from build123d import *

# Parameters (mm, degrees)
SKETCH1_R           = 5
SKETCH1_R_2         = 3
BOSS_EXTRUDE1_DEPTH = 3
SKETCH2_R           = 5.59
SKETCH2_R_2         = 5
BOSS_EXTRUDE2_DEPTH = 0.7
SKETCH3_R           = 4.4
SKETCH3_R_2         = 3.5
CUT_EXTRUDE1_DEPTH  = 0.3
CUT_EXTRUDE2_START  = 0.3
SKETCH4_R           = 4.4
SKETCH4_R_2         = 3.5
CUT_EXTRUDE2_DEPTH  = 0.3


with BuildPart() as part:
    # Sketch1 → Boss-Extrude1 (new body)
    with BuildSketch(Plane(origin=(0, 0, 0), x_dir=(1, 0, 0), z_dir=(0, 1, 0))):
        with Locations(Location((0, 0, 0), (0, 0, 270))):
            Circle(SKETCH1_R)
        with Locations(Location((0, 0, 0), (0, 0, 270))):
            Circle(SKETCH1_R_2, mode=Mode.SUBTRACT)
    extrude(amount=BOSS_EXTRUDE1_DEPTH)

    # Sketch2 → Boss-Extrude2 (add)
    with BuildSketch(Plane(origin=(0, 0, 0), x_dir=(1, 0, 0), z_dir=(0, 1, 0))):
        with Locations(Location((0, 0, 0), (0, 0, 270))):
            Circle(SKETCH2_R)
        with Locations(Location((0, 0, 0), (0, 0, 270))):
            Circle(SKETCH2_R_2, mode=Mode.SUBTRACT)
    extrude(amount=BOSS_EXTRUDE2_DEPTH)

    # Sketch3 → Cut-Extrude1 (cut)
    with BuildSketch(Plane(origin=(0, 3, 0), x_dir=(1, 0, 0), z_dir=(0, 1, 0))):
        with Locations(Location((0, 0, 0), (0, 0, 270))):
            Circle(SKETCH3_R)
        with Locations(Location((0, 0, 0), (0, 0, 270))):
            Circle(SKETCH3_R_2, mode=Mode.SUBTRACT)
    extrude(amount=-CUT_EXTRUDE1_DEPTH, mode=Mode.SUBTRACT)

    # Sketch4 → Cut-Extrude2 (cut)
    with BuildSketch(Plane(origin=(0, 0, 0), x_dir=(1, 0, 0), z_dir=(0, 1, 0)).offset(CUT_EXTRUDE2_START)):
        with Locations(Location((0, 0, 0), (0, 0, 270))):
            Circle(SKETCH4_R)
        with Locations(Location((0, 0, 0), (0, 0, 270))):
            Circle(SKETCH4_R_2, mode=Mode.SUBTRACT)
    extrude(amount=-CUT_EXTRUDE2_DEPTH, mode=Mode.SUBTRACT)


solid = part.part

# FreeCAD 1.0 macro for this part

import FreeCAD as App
import Part
import Sketcher
from FreeCAD import Vector

doc = App.newDocument("Part")
params = doc.addObject("Spreadsheet::Sheet", "Params")
for row, (alias, value) in enumerate([
    ("sketch1_diameter", "10 mm"),
    ("sketch1_diameter2", "6 mm"),
    ("pad1_length", "3 mm"),
    ("sketch2_diameter", "10 mm"),
    ("sketch2_diameter2", "11.18 mm"),
    ("pad2_length", "0.7 mm"),
    ("sketch3_diameter", "7 mm"),
    ("sketch3_diameter2", "8.8 mm"),
    ("pocket1_length", "0.3 mm"),
    ("sketch4_diameter", "7 mm"),
    ("sketch4_diameter2", "8.8 mm"),
    ("pocket2_length", "0.3 mm"),
], start=1):
    params.set(f"A{row}", alias)
    params.set(f"B{row}", "=" + value)
    params.setAlias(f"B{row}", alias)

body = doc.addObject("PartDesign::Body", "Body")

sketch1 = body.newObject("Sketcher::SketchObject", "Sketch")
sketch1.AttachmentSupport = (doc.getObject("XZ_Plane"), [""])
sketch1.MapMode = "FlatFace"
sketch1.addGeometry(Part.Circle(Vector(0, 0, 0), Vector(0, 0, 1), 5), False)
sketch1.addGeometry(Part.Circle(Vector(0, 0, 0), Vector(0, 0, 1), 3), False)
sketch1.addConstraint(Sketcher.Constraint("Coincident", 0, 3, -1, 1))
sketch1.addConstraint(Sketcher.Constraint("Coincident", 1, 3, -1, 1))
sketch1.addConstraint(Sketcher.Constraint("Diameter", 0, 10.0))
sketch1.addConstraint(Sketcher.Constraint("Diameter", 1, 6.0))
sketch1.setExpression("Constraints[2]", "Params.sketch1_diameter")
sketch1.setExpression("Constraints[3]", "Params.sketch1_diameter2")
pad1 = body.newObject("PartDesign::Pad", "Pad")
pad1.Profile = sketch1
pad1.setExpression("Length", "Params.pad1_length")
pad1.Reversed = True

sketch2 = body.newObject("Sketcher::SketchObject", "Sketch001")
sketch2.AttachmentSupport = (doc.getObject("XZ_Plane"), [""])
sketch2.MapMode = "FlatFace"
sketch2.addGeometry(Part.Circle(Vector(0, 0, 0), Vector(0, 0, 1), 6), False)
sketch2.addGeometry(Part.Circle(Vector(0, 0, 0), Vector(0, 0, 1), 5), False)
sketch2.addConstraint(Sketcher.Constraint("Coincident", 0, 3, -1, 1))
sketch2.addConstraint(Sketcher.Constraint("Coincident", 1, 3, -1, 1))
sketch2.addConstraint(Sketcher.Constraint("Diameter", 1, 10.0))
sketch2.addConstraint(Sketcher.Constraint("Diameter", 0, 11.18))
sketch2.setExpression("Constraints[2]", "Params.sketch2_diameter")
sketch2.setExpression("Constraints[3]", "Params.sketch2_diameter2")
pad2 = body.newObject("PartDesign::Pad", "Pad001")
pad2.Profile = sketch2
pad2.setExpression("Length", "Params.pad2_length")
pad2.Reversed = True

sketch3 = body.newObject("Sketcher::SketchObject", "Sketch002")
sketch3.AttachmentSupport = (doc.getObject("XZ_Plane"), [""])
sketch3.MapMode = "FlatFace"
sketch3.AttachmentOffset = App.Placement(Vector(0, 0, -3), App.Rotation())
sketch3.addGeometry(Part.Circle(Vector(0, 0, 0), Vector(0, 0, 1), 4.4), False)
sketch3.addGeometry(Part.Circle(Vector(0, 0, 0), Vector(0, 0, 1), 3.5), False)
sketch3.addConstraint(Sketcher.Constraint("Coincident", 0, 3, -1, 1))
sketch3.addConstraint(Sketcher.Constraint("Coincident", 1, 3, -1, 1))
sketch3.addConstraint(Sketcher.Constraint("Diameter", 1, 7.0))
sketch3.addConstraint(Sketcher.Constraint("Diameter", 0, 8.8))
sketch3.setExpression("Constraints[2]", "Params.sketch3_diameter")
sketch3.setExpression("Constraints[3]", "Params.sketch3_diameter2")
pocket1 = body.newObject("PartDesign::Pocket", "Pocket")
pocket1.Profile = sketch3
pocket1.setExpression("Length", "Params.pocket1_length")
pocket1.Reversed = True

sketch4 = body.newObject("Sketcher::SketchObject", "Sketch003")
sketch4.AttachmentSupport = (doc.getObject("XZ_Plane"), [""])
sketch4.MapMode = "FlatFace"
sketch4.AttachmentOffset = App.Placement(Vector(0, 0, -0.3), App.Rotation())
sketch4.addGeometry(Part.Circle(Vector(0, 0, 0), Vector(0, 0, 1), 4.4), False)
sketch4.addGeometry(Part.Circle(Vector(0, 0, 0), Vector(0, 0, 1), 3.5), False)
sketch4.addConstraint(Sketcher.Constraint("Coincident", 0, 3, -1, 1))
sketch4.addConstraint(Sketcher.Constraint("Coincident", 1, 3, -1, 1))
sketch4.addConstraint(Sketcher.Constraint("Diameter", 1, 7.0))
sketch4.addConstraint(Sketcher.Constraint("Diameter", 0, 8.8))
sketch4.setExpression("Constraints[2]", "Params.sketch4_diameter")
sketch4.setExpression("Constraints[3]", "Params.sketch4_diameter2")
pocket2 = body.newObject("PartDesign::Pocket", "Pocket001")
pocket2.Profile = sketch4
pocket2.setExpression("Length", "Params.pocket2_length")
pocket2.Reversed = True

doc.recompute()
